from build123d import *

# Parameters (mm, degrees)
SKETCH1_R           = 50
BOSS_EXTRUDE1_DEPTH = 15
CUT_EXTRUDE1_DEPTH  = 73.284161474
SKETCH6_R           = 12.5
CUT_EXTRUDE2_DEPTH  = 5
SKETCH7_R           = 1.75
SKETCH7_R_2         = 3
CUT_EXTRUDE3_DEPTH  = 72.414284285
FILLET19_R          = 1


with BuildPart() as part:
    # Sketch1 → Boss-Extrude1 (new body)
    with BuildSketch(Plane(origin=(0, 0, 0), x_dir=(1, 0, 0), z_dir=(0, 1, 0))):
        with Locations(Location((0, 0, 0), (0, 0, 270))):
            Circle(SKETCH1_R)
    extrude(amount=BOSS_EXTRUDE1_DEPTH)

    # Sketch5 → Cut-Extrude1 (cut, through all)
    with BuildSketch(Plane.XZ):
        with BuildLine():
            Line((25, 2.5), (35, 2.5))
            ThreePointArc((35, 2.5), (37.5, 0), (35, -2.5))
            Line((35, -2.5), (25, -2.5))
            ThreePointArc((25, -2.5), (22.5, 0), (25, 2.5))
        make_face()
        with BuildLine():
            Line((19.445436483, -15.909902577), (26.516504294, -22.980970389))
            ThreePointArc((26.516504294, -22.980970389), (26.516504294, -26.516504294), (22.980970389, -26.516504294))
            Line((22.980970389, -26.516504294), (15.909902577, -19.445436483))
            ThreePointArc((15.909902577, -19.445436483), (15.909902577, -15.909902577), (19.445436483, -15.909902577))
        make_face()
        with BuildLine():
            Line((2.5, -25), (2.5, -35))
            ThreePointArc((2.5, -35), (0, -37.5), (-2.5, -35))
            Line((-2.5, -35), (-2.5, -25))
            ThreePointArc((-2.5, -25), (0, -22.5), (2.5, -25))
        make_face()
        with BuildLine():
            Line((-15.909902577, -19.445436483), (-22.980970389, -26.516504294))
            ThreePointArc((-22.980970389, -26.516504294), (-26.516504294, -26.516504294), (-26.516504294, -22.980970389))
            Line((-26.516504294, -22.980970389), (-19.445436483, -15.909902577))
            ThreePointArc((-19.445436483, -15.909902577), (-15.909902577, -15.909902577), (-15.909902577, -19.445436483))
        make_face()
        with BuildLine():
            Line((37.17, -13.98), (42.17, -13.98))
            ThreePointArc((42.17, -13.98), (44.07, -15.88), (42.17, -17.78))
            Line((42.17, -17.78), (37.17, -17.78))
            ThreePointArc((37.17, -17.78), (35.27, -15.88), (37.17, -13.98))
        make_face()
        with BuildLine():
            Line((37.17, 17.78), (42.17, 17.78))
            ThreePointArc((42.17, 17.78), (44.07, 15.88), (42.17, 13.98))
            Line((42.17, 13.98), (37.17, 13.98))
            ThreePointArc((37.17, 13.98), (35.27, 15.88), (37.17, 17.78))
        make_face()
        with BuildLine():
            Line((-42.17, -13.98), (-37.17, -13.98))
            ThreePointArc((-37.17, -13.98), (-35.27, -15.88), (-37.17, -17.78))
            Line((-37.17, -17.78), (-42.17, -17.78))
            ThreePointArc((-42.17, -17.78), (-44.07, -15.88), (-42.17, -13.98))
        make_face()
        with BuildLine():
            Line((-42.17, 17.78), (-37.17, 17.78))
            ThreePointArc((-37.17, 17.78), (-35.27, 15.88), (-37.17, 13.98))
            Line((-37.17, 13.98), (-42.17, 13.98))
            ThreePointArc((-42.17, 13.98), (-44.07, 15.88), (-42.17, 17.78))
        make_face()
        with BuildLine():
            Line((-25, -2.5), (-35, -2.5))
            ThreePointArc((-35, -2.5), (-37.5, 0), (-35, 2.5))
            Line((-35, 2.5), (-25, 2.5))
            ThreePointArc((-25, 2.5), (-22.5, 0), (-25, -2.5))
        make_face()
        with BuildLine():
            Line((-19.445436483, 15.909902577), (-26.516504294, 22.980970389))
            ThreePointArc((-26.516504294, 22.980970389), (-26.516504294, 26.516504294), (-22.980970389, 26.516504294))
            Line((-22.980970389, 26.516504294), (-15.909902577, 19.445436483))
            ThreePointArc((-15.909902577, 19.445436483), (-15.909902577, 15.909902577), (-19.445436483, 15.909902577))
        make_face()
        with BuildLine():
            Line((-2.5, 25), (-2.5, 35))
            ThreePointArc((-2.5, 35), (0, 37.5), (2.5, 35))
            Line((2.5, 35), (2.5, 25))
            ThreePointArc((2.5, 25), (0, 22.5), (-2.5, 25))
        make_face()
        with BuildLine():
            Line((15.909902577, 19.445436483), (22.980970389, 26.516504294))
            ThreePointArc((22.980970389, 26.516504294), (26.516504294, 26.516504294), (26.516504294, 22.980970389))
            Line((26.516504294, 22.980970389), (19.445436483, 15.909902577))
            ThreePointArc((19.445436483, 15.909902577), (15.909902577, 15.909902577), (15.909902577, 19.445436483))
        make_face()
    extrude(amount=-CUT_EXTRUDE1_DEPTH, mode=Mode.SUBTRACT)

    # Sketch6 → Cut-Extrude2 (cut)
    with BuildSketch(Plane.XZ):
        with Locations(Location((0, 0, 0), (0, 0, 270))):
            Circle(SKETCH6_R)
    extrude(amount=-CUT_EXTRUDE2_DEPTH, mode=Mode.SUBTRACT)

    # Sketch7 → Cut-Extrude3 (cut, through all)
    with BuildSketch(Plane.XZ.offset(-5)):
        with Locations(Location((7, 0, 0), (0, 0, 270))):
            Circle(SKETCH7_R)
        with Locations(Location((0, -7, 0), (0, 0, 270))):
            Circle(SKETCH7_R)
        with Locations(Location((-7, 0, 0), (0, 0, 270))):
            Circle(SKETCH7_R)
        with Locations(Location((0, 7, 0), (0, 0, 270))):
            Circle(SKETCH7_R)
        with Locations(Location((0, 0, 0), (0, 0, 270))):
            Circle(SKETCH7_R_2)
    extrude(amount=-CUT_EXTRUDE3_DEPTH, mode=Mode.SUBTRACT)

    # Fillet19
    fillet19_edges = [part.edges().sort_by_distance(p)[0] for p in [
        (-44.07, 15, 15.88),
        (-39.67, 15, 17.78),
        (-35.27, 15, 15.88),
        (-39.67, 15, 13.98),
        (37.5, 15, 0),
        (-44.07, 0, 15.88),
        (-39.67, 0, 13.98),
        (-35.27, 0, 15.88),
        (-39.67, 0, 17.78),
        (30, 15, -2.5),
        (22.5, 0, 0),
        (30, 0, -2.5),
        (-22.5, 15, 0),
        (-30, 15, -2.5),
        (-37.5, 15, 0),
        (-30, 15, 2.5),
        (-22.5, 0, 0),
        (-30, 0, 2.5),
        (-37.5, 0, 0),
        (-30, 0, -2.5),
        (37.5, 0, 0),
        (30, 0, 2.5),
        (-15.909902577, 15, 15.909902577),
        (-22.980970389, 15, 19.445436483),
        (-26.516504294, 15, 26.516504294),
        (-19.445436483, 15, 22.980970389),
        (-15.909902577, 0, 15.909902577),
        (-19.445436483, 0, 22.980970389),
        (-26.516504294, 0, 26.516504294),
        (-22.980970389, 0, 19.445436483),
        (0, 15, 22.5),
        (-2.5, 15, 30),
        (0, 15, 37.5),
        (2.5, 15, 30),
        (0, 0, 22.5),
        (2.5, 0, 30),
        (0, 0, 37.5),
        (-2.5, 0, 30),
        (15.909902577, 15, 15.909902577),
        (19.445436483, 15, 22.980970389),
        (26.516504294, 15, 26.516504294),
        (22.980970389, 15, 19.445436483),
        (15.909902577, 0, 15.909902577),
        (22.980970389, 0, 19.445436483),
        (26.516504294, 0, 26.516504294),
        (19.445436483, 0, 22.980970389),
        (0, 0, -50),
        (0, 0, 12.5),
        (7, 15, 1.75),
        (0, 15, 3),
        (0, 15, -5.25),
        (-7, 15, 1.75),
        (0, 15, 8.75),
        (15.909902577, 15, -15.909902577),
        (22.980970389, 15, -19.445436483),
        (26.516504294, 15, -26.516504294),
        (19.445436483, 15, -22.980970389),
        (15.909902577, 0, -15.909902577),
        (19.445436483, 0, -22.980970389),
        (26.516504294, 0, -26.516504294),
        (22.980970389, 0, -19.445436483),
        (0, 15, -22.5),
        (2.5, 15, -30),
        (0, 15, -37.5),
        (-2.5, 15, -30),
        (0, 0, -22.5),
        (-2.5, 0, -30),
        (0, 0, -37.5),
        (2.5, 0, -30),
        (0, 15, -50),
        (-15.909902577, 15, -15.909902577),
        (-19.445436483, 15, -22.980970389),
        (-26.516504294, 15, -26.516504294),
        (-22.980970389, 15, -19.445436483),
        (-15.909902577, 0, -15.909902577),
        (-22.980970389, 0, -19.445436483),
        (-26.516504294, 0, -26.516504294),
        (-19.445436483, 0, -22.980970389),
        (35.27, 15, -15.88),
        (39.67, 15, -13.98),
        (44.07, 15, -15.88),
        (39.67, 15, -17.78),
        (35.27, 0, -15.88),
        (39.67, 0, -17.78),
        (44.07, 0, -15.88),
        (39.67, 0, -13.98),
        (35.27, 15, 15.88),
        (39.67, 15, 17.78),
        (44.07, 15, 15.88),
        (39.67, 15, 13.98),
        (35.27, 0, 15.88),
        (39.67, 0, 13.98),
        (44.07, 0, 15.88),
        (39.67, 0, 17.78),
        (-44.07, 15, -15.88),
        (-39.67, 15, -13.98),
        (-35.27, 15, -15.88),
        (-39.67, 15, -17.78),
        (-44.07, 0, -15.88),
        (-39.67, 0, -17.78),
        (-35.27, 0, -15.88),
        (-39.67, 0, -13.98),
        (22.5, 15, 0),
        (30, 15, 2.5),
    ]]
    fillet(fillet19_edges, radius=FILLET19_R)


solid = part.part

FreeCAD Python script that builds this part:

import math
import FreeCAD as App
import Part
import Sketcher
from FreeCAD import Vector
Q = App.Units.Quantity


def edges_at(feature, points):
    """Names of the edges that pass closest to the given points."""
    edges = feature.Shape.Edges
    near = lambda p: min(range(len(edges)), key=lambda i: edges[i].distToShape(Part.Vertex(*p))[0])
    return sorted({f"Edge{near(p) + 1}" for p in points})

doc = App.newDocument("Part")
body = doc.addObject("PartDesign::Body", "Body")

sketch1 = body.newObject("Sketcher::SketchObject", "Sketch")
sketch1.AttachmentSupport = (doc.getObject("XZ_Plane"), [""])
sketch1.MapMode = "FlatFace"
sketch1.addGeometry(Part.Circle(Vector(0, 0, 0), Vector(0, 0, 1), 50), False)
sketch1.addConstraint([
    Sketcher.Constraint("Coincident", 0, 3, -1, 1),
    Sketcher.Constraint("Diameter", 0, Q("100 mm")),
])
pad1 = body.newObject("PartDesign::Pad", "Pad")
pad1.Profile = sketch1
pad1.Length = 15
pad1.Reversed = True

sketch2 = body.newObject("Sketcher::SketchObject", "Sketch001")
sketch2.AttachmentSupport = (doc.getObject("XZ_Plane"), [""])
sketch2.MapMode = "FlatFace"
sketch2.addGeometry([
    Part.LineSegment(Vector(35, 2.5, 0), Vector(25, 2.5, 0)),
    Part.ArcOfCircle(Part.Circle(Vector(25, 0, 0), Vector(0, 0, 1), 2.5), math.radians(90), math.radians(270)),
    Part.LineSegment(Vector(25, -2.5, 0), Vector(35, -2.5, 0)),
    Part.ArcOfCircle(Part.Circle(Vector(35, 0, 0), Vector(0, 0, 1), 2.5), math.radians(-90), math.radians(90)),
    Part.LineSegment(Vector(26.5, -23, 0), Vector(19.4, -15.9, 0)),
    Part.ArcOfCircle(Part.Circle(Vector(17.7, -17.7, 0), Vector(0, 0, 1), 2.5), math.radians(45), math.radians(225)),
    Part.LineSegment(Vector(15.9, -19.4, 0), Vector(23, -26.5, 0)),
    Part.ArcOfCircle(Part.Circle(Vector(24.7, -24.7, 0), Vector(0, 0, 1), 2.5), math.radians(-135), math.radians(45)),
    Part.LineSegment(Vector(2.5, -35, 0), Vector(2.5, -25, 0)),
    Part.ArcOfCircle(Part.Circle(Vector(0, -25, 0), Vector(0, 0, 1), 2.5), math.radians(0), math.radians(180)),
    Part.LineSegment(Vector(-2.5, -25, 0), Vector(-2.5, -35, 0)),
    Part.ArcOfCircle(Part.Circle(Vector(0, -35, 0), Vector(0, 0, 1), 2.5), math.radians(180), math.radians(360)),
    Part.LineSegment(Vector(-23, -26.5, 0), Vector(-15.9, -19.4, 0)),
    Part.ArcOfCircle(Part.Circle(Vector(-17.7, -17.7, 0), Vector(0, 0, 1), 2.5), math.radians(-45), math.radians(135)),
    Part.LineSegment(Vector(-19.4, -15.9, 0), Vector(-26.5, -23, 0)),
    Part.ArcOfCircle(Part.Circle(Vector(-24.7, -24.7, 0), Vector(0, 0, 1), 2.5), math.radians(135), math.radians(315)),
    Part.LineSegment(Vector(42.2, -14, 0), Vector(37.2, -14, 0)),
    Part.ArcOfCircle(Part.Circle(Vector(37.2, -15.9, 0), Vector(0, 0, 1), 1.9), math.radians(90), math.radians(270)),
    Part.LineSegment(Vector(37.2, -17.8, 0), Vector(42.2, -17.8, 0)),
    Part.ArcOfCircle(Part.Circle(Vector(42.2, -15.9, 0), Vector(0, 0, 1), 1.9), math.radians(-90), math.radians(90)),
    Part.LineSegment(Vector(42.2, 17.8, 0), Vector(37.2, 17.8, 0)),
    Part.ArcOfCircle(Part.Circle(Vector(37.2, 15.9, 0), Vector(0, 0, 1), 1.9), math.radians(90), math.radians(270)),
    Part.LineSegment(Vector(37.2, 14, 0), Vector(42.2, 14, 0)),
    Part.ArcOfCircle(Part.Circle(Vector(42.2, 15.9, 0), Vector(0, 0, 1), 1.9), math.radians(-90), math.radians(90)),
    Part.LineSegment(Vector(-37.2, -14, 0), Vector(-42.2, -14, 0)),
    Part.ArcOfCircle(Part.Circle(Vector(-42.2, -15.9, 0), Vector(0, 0, 1), 1.9), math.radians(90), math.radians(270)),
    Part.LineSegment(Vector(-42.2, -17.8, 0), Vector(-37.2, -17.8, 0)),
    Part.ArcOfCircle(Part.Circle(Vector(-37.2, -15.9, 0), Vector(0, 0, 1), 1.9), math.radians(-90), math.radians(90)),
    Part.LineSegment(Vector(-37.2, 17.8, 0), Vector(-42.2, 17.8, 0)),
    Part.ArcOfCircle(Part.Circle(Vector(-42.2, 15.9, 0), Vector(0, 0, 1), 1.9), math.radians(90), math.radians(270)),
    Part.LineSegment(Vector(-42.2, 14, 0), Vector(-37.2, 14, 0)),
    Part.ArcOfCircle(Part.Circle(Vector(-37.2, 15.9, 0), Vector(0, 0, 1), 1.9), math.radians(-90), math.radians(90)),
    Part.LineSegment(Vector(-35, -2.5, 0), Vector(-25, -2.5, 0)),
    Part.ArcOfCircle(Part.Circle(Vector(-25, 0, 0), Vector(0, 0, 1), 2.5), math.radians(-90), math.radians(90)),
    Part.LineSegment(Vector(-25, 2.5, 0), Vector(-35, 2.5, 0)),
    Part.ArcOfCircle(Part.Circle(Vector(-35, 0, 0), Vector(0, 0, 1), 2.5), math.radians(90), math.radians(270)),
    Part.LineSegment(Vector(-26.5, 23, 0), Vector(-19.4, 15.9, 0)),
    Part.ArcOfCircle(Part.Circle(Vector(-17.7, 17.7, 0), Vector(0, 0, 1), 2.5), math.radians(-135), math.radians(45)),
    Part.LineSegment(Vector(-15.9, 19.4, 0), Vector(-23, 26.5, 0)),
    Part.ArcOfCircle(Part.Circle(Vector(-24.7, 24.7, 0), Vector(0, 0, 1), 2.5), math.radians(45), math.radians(225)),
    Part.LineSegment(Vector(-2.5, 35, 0), Vector(-2.5, 25, 0)),
    Part.ArcOfCircle(Part.Circle(Vector(0, 25, 0), Vector(0, 0, 1), 2.5), math.radians(180), math.radians(360)),
    Part.LineSegment(Vector(2.5, 25, 0), Vector(2.5, 35, 0)),
    Part.ArcOfCircle(Part.Circle(Vector(0, 35, 0), Vector(0, 0, 1), 2.5), math.radians(0), math.radians(180)),
    Part.LineSegment(Vector(23, 26.5, 0), Vector(15.9, 19.4, 0)),
    Part.ArcOfCircle(Part.Circle(Vector(17.7, 17.7, 0), Vector(0, 0, 1), 2.5), math.radians(135), math.radians(315)),
    Part.LineSegment(Vector(19.4, 15.9, 0), Vector(26.5, 23, 0)),
    Part.ArcOfCircle(Part.Circle(Vector(24.7, 24.7, 0), Vector(0, 0, 1), 2.5), math.radians(-45), math.radians(135)),
], False)
sketch2.addConstraint([
    Sketcher.Constraint("Tangent", 0, 2, 1, 1),
    Sketcher.Constraint("Tangent", 1, 2, 2, 1),
    Sketcher.Constraint("Tangent", 2, 2, 3, 1),
    Sketcher.Constraint("Tangent", 3, 2, 0, 1),
    Sketcher.Constraint("Tangent", 4, 2, 5, 1),
    Sketcher.Constraint("Tangent", 5, 2, 6, 1),
    Sketcher.Constraint("Tangent", 6, 2, 7, 1),
    Sketcher.Constraint("Tangent", 7, 2, 4, 1),
    Sketcher.Constraint("Tangent", 8, 2, 9, 1),
    Sketcher.Constraint("Tangent", 9, 2, 10, 1),
    Sketcher.Constraint("Tangent", 10, 2, 11, 1),
    Sketcher.Constraint("Tangent", 11, 2, 8, 1),
    Sketcher.Constraint("Tangent", 12, 2, 13, 1),
    Sketcher.Constraint("Tangent", 13, 2, 14, 1),
    Sketcher.Constraint("Tangent", 14, 2, 15, 1),
    Sketcher.Constraint("Tangent", 15, 2, 12, 1),
    Sketcher.Constraint("Tangent", 16, 2, 17, 1),
    Sketcher.Constraint("Tangent", 17, 2, 18, 1),
    Sketcher.Constraint("Tangent", 18, 2, 19, 1),
    Sketcher.Constraint("Tangent", 19, 2, 16, 1),
    Sketcher.Constraint("Tangent", 20, 2, 21, 1),
    Sketcher.Constraint("Tangent", 21, 2, 22, 1),
    Sketcher.Constraint("Tangent", 22, 2, 23, 1),
    Sketcher.Constraint("Tangent", 23, 2, 20, 1),
    Sketcher.Constraint("Tangent", 24, 2, 25, 1),
    Sketcher.Constraint("Tangent", 25, 2, 26, 1),
    Sketcher.Constraint("Tangent", 26, 2, 27, 1),
    Sketcher.Constraint("Tangent", 27, 2, 24, 1),
    Sketcher.Constraint("Tangent", 28, 2, 29, 1),
    Sketcher.Constraint("Tangent", 29, 2, 30, 1),
    Sketcher.Constraint("Tangent", 30, 2, 31, 1),
    Sketcher.Constraint("Tangent", 31, 2, 28, 1),
    Sketcher.Constraint("Tangent", 32, 2, 33, 1),
    Sketcher.Constraint("Tangent", 33, 2, 34, 1),
    Sketcher.Constraint("Tangent", 34, 2, 35, 1),
    Sketcher.Constraint("Tangent", 35, 2, 32, 1),
    Sketcher.Constraint("Tangent", 36, 2, 37, 1),
    Sketcher.Constraint("Tangent", 37, 2, 38, 1),
    Sketcher.Constraint("Tangent", 38, 2, 39, 1),
    Sketcher.Constraint("Tangent", 39, 2, 36, 1),
    Sketcher.Constraint("Tangent", 40, 2, 41, 1),
    Sketcher.Constraint("Tangent", 41, 2, 42, 1),
    Sketcher.Constraint("Tangent", 42, 2, 43, 1),
    Sketcher.Constraint("Tangent", 43, 2, 40, 1),
    Sketcher.Constraint("Tangent", 44, 2, 45, 1),
    Sketcher.Constraint("Tangent", 45, 2, 46, 1),
    Sketcher.Constraint("Tangent", 46, 2, 47, 1),
    Sketcher.Constraint("Tangent", 47, 2, 44, 1),
    Sketcher.Constraint("Horizontal", 0),
    Sketcher.Constraint("Horizontal", 2),
    Sketcher.Constraint("Vertical", 8),
    Sketcher.Constraint("Vertical", 10),
    Sketcher.Constraint("Horizontal", 16),
    Sketcher.Constraint("Horizontal", 18),
    Sketcher.Constraint("Horizontal", 20),
    Sketcher.Constraint("Horizontal", 22),
    Sketcher.Constraint("Horizontal", 24),
    Sketcher.Constraint("Horizontal", 26),
    Sketcher.Constraint("Horizontal", 28),
    Sketcher.Constraint("Horizontal", 30),
    Sketcher.Constraint("Horizontal", 32),
    Sketcher.Constraint("Horizontal", 34),
    Sketcher.Constraint("Vertical", 40),
    Sketcher.Constraint("Vertical", 42),
    Sketcher.Constraint("Equal", 3, 5),
    Sketcher.Constraint("Equal", 5, 7),
    Sketcher.Constraint("Equal", 7, 9),
    Sketcher.Constraint("Equal", 11, 13),
    Sketcher.Constraint("Equal", 13, 15),
    Sketcher.Constraint("Equal", 19, 21),
    Sketcher.Constraint("Equal", 23, 25),
    Sketcher.Constraint("Equal", 27, 29),
    Sketcher.Constraint("Equal", 15, 33),
    Sketcher.Constraint("Equal", 35, 37),
    Sketcher.Constraint("Equal", 37, 39),
    Sketcher.Constraint("Equal", 39, 41),
    Sketcher.Constraint("Equal", 43, 45),
    Sketcher.Constraint("Equal", 45, 47),
    Sketcher.Constraint("Symmetric", 23, 3, 25, 3, -1, 1),
    Sketcher.Constraint("Symmetric", 19, 3, 29, 3, -1, 1),
    Sketcher.Constraint("Symmetric", 1, 3, 33, 3, -1, 1),
    Sketcher.Constraint("Symmetric", 5, 3, 37, 3, -1, 1),
    Sketcher.Constraint("Symmetric", 7, 3, 39, 3, -1, 1),
    Sketcher.Constraint("Symmetric", 9, 3, 41, 3, -1, 1),
    Sketcher.Constraint("Symmetric", 13, 3, 45, 3, -1, 1),
    Sketcher.Constraint("Symmetric", 15, 3, 47, 3, -1, 1),
    Sketcher.Constraint("Symmetric", 5, 3, 13, 3, -2),
    Sketcher.Constraint("Symmetric", 7, 3, 15, 3, -2),
    Sketcher.Constraint("Symmetric", 19, 3, 25, 3, -2),
    Sketcher.Constraint("Symmetric", 3, 3, 35, 3, -2),
    Sketcher.Constraint("Symmetric", 11, 3, 43, 3, -1),
    Sketcher.Constraint("Perpendicular", 6, 12),
    Sketcher.Constraint("Vertical", 17, 3, 21, 3),
    Sketcher.Constraint("Vertical", 27, 3, 31, 3),
    Sketcher.Constraint("Equal", 22, 24),
    Sketcher.Constraint("Equal", 34, 8),
    Sketcher.Constraint("Radius", 1, Q("2.5 mm")),
    Sketcher.Constraint("Radius", 17, Q("1.9 mm")),
    Sketcher.Constraint("DistanceX", 0, 2, 0, 1, Q("10 mm")),
    Sketcher.Constraint("DistanceX", 16, 2, 16, 1, Q("5 mm")),
    Sketcher.Constraint("Distance", 4, Q("10 mm")),
    Sketcher.Constraint("DistanceX", -1, 1, 1, 3, Q("25 mm")),
    Sketcher.Constraint("DistanceY", 9, 3, -1, 1, Q("25 mm")),
    Sketcher.Constraint("DistanceX", -1, 1, 17, 3, Q("37.17 mm")),
    Sketcher.Constraint("DistanceY", 17, 3, -1, 1, Q("15.88 mm")),
    Sketcher.Constraint("DistanceX", -1, 1, 5, 3, Q("17.67767 mm")),
    Sketcher.Constraint("DistanceY", 5, 3, -1, 1, Q("17.67767 mm")),
])
pocket1 = body.newObject("PartDesign::Pocket", "Pocket")
pocket1.Profile = sketch2
pocket1.Type = "ThroughAll"

sketch3 = body.newObject("Sketcher::SketchObject", "Sketch002")
sketch3.AttachmentSupport = (doc.getObject("XZ_Plane"), [""])
sketch3.MapMode = "FlatFace"
sketch3.addGeometry(Part.Circle(Vector(0, 0, 0), Vector(0, 0, 1), 12), False)
sketch3.addConstraint([
    Sketcher.Constraint("Coincident", 0, 3, -1, 1),
    Sketcher.Constraint("Diameter", 0, Q("25 mm")),
])
pocket2 = body.newObject("PartDesign::Pocket", "Pocket001")
pocket2.Profile = sketch3
pocket2.Length = 5

sketch4 = body.newObject("Sketcher::SketchObject", "Sketch003")
sketch4.AttachmentSupport = (doc.getObject("XZ_Plane"), [""])
sketch4.MapMode = "FlatFace"
sketch4.AttachmentOffset = App.Placement(Vector(0, 0, -5), App.Rotation())
sketch4.addGeometry([
    Part.Circle(Vector(7, 0, 0), Vector(0, 0, 1), 1.8),
    Part.Circle(Vector(0, -7, 0), Vector(0, 0, 1), 1.8),
    Part.Circle(Vector(-7, 0, 0), Vector(0, 0, 1), 1.8),
    Part.Circle(Vector(0, 7, 0), Vector(0, 0, 1), 1.8),
    Part.Circle(Vector(0, 0, 0), Vector(0, 0, 1), 3),
], False)
sketch4.addConstraint([
    Sketcher.Constraint("Coincident", 4, 3, -1, 1),
    Sketcher.Constraint("Equal", 0, 1),
    Sketcher.Constraint("Equal", 1, 2),
    Sketcher.Constraint("Equal", 2, 3),
    Sketcher.Constraint("Symmetric", 0, 3, 2, 3, -1, 1),
    Sketcher.Constraint("Symmetric", 1, 3, 3, 3, -1, 1),
    Sketcher.Constraint("PointOnObject", 0, 3, -1),
    Sketcher.Constraint("PointOnObject", 1, 3, -2),
    Sketcher.Constraint("Diameter", 4, Q("6 mm")),
    Sketcher.Constraint("Diameter", 0, Q("3.5 mm")),
    Sketcher.Constraint("DistanceX", -1, 1, 0, 3, Q("7 mm")),
    Sketcher.Constraint("DistanceY", 1, 3, -1, 1, Q("7 mm")),
])
pocket3 = body.newObject("PartDesign::Pocket", "Pocket002")
pocket3.Profile = sketch4
pocket3.Type = "ThroughAll"
doc.recompute()

fillet = body.newObject("PartDesign::Fillet", "Fillet")
fillet.Base = (pocket3, edges_at(pocket3, [
    (-44.07, 15, 15.88),
    (-39.67, 15, 17.78),
    (-35.27, 15, 15.88),
    (-39.67, 15, 13.98),
    (37.5, 15, 0),
    (-44.07, 0, 15.88),
    (-39.67, 0, 13.98),
    (-35.27, 0, 15.88),
    (-39.67, 0, 17.78),
    (30, 15, -2.5),
    (22.5, 0, 0),
    (30, 0, -2.5),
    (-22.5, 15, 0),
    (-30, 15, -2.5),
    (-37.5, 15, 0),
    (-30, 15, 2.5),
    (-22.5, 0, 0),
    (-30, 0, 2.5),
    (-37.5, 0, 0),
    (-30, 0, -2.5),
    (37.5, 0, 0),
    (30, 0, 2.5),
    (-15.91, 15, 15.91),
    (-22.981, 15, 19.445),
    (-26.517, 15, 26.517),
    (-19.445, 15, 22.981),
    (-15.91, 0, 15.91),
    (-19.445, 0, 22.981),
    (-26.517, 0, 26.517),
    (-22.981, 0, 19.445),
    (0, 15, 22.5),
    (-2.5, 15, 30),
    (0, 15, 37.5),
    (2.5, 15, 30),
    (0, 0, 22.5),
    (2.5, 0, 30),
    (0, 0, 37.5),
    (-2.5, 0, 30),
    (15.91, 15, 15.91),
    (19.445, 15, 22.981),
    (26.517, 15, 26.517),
    (22.981, 15, 19.445),
    (15.91, 0, 15.91),
    (22.981, 0, 19.445),
    (26.517, 0, 26.517),
    (19.445, 0, 22.981),
    (0, 0, -50),
    (0, 0, 12.5),
    (7, 15, 1.75),
    (0, 15, 3),
    (0, 15, -5.25),
    (-7, 15, 1.75),
    (0, 15, 8.75),
    (15.91, 15, -15.91),
    (22.981, 15, -19.445),
    (26.517, 15, -26.517),
    (19.445, 15, -22.981),
    (15.91, 0, -15.91),
    (19.445, 0, -22.981),
    (26.517, 0, -26.517),
    (22.981, 0, -19.445),
    (0, 15, -22.5),
    (2.5, 15, -30),
    (0, 15, -37.5),
    (-2.5, 15, -30),
    (0, 0, -22.5),
    (-2.5, 0, -30),
    (0, 0, -37.5),
    (2.5, 0, -30),
    (0, 15, -50),
    (-15.91, 15, -15.91),
    (-19.445, 15, -22.981),
    (-26.517, 15, -26.517),
    (-22.981, 15, -19.445),
    (-15.91, 0, -15.91),
    (-22.981, 0, -19.445),
    (-26.517, 0, -26.517),
    (-19.445, 0, -22.981),
    (35.27, 15, -15.88),
    (39.67, 15, -13.98),
    (44.07, 15, -15.88),
    (39.67, 15, -17.78),
    (35.27, 0, -15.88),
    (39.67, 0, -17.78),
    (44.07, 0, -15.88),
    (39.67, 0, -13.98),
    (35.27, 15, 15.88),
    (39.67, 15, 17.78),
    (44.07, 15, 15.88),
    (39.67, 15, 13.98),
    (35.27, 0, 15.88),
    (39.67, 0, 13.98),
    (44.07, 0, 15.88),
    (39.67, 0, 17.78),
    (-44.07, 15, -15.88),
    (-39.67, 15, -13.98),
    (-35.27, 15, -15.88),
    (-39.67, 15, -17.78),
    (-44.07, 0, -15.88),
    (-39.67, 0, -17.78),
    (-35.27, 0, -15.88),
    (-39.67, 0, -13.98),
    (22.5, 15, 0),
    (30, 15, 2.5),
]))
fillet.Radius = 1

doc.recompute()
